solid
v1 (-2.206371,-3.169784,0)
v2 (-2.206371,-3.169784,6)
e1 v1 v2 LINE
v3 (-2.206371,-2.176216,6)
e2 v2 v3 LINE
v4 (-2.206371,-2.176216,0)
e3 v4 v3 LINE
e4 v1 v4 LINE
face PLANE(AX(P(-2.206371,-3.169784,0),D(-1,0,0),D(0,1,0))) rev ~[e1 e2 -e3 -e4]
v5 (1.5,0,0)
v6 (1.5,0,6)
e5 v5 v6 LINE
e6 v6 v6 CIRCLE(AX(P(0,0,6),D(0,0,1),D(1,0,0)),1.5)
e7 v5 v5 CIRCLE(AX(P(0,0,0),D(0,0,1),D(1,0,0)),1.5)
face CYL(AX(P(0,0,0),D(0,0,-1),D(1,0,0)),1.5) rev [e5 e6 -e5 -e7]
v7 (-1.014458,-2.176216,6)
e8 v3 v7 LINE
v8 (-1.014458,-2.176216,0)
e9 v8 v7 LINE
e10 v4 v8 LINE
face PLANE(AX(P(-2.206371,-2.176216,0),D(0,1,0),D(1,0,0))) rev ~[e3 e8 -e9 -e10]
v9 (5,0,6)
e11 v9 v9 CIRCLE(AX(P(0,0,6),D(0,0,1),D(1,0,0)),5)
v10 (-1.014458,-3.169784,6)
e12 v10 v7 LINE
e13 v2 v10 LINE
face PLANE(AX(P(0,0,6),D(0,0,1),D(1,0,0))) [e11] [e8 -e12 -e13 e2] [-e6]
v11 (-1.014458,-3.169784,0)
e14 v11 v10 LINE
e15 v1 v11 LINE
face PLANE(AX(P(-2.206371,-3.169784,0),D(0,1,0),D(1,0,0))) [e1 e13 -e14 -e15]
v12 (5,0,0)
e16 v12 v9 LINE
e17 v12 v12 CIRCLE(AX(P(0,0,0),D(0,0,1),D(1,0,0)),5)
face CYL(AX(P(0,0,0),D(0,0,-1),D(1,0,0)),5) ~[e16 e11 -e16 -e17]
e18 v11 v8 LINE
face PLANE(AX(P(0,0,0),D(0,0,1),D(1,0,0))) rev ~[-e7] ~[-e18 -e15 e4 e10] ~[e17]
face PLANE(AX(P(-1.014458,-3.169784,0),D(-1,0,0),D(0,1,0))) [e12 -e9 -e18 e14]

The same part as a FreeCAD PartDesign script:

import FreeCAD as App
import Part
import Sketcher

V = App.Vector

doc = App.newDocument("Part")
params = doc.addObject("Spreadsheet::Sheet", "Params")
for row, (alias, value) in enumerate([
    ("sketch1_diameter", "10 mm"),
    ("sketch1_diameter2", "3 mm"),
    ("pad1_length", "6 mm"),
], start=1):
    params.set(f"A{row}", alias)
    params.set(f"B{row}", "=" + value)
    params.setAlias(f"B{row}", alias)

body = doc.addObject("PartDesign::Body", "Body")

# Sketch on XY plane
sketch1 = body.newObject("Sketcher::SketchObject", "Sketch")
sketch1.AttachmentSupport = (doc.getObject("XY_Plane"), [""])
sketch1.MapMode = "FlatFace"
sketch1.addGeometry([
    Part.Circle(V(0, 0, 0), V(0, 0, 1), 5),  # 0
    Part.LineSegment(V(-1, -3.2, 0), V(-2.2, -3.2, 0)),  # 1
    Part.LineSegment(V(-2.2, -3.2, 0), V(-2.2, -2.2, 0)),  # 2
    Part.LineSegment(V(-2.2, -2.2, 0), V(-1, -2.2, 0)),  # 3
    Part.LineSegment(V(-1, -2.2, 0), V(-1, -3.2, 0)),  # 4
    Part.Circle(V(0, 0, 0), V(0, 0, 1), 1.5),  # 5
], False)
sketch1.addConstraint([
    Sketcher.Constraint("Coincident", 1, 2, 2, 1),
    Sketcher.Constraint("Coincident", 2, 2, 3, 1),
    Sketcher.Constraint("Coincident", 3, 2, 4, 1),
    Sketcher.Constraint("Coincident", 4, 2, 1, 1),
    Sketcher.Constraint("Horizontal", 1),
    Sketcher.Constraint("Vertical", 2),
    Sketcher.Constraint("Horizontal", 3),
    Sketcher.Constraint("Vertical", 4),
    Sketcher.Constraint("Coincident", 0, 3, -1, 1),
    Sketcher.Constraint("Coincident", 5, 3, -1, 1),
    Sketcher.Constraint("Diameter", 0, 10.0),
    Sketcher.Constraint("Diameter", 5, 3.0),
    Sketcher.Constraint("DistanceX", 1, 2, 1, 1, 1.191913),
    Sketcher.Constraint("DistanceY", 2, 1, 2, 2, 0.993568),
    Sketcher.Constraint("DistanceX", 1, 2, -1, 1, 2.206371),
    Sketcher.Constraint("DistanceY", 1, 2, -1, 1, 3.169784),
])
sketch1.setExpression("Constraints[10]", "Params.sketch1_diameter")
sketch1.setExpression("Constraints[11]", "Params.sketch1_diameter2")
pad1 = body.newObject("PartDesign::Pad", "Pad")
pad1.Profile = sketch1
pad1.setExpression("Length", "Params.pad1_length")

doc.recompute()
